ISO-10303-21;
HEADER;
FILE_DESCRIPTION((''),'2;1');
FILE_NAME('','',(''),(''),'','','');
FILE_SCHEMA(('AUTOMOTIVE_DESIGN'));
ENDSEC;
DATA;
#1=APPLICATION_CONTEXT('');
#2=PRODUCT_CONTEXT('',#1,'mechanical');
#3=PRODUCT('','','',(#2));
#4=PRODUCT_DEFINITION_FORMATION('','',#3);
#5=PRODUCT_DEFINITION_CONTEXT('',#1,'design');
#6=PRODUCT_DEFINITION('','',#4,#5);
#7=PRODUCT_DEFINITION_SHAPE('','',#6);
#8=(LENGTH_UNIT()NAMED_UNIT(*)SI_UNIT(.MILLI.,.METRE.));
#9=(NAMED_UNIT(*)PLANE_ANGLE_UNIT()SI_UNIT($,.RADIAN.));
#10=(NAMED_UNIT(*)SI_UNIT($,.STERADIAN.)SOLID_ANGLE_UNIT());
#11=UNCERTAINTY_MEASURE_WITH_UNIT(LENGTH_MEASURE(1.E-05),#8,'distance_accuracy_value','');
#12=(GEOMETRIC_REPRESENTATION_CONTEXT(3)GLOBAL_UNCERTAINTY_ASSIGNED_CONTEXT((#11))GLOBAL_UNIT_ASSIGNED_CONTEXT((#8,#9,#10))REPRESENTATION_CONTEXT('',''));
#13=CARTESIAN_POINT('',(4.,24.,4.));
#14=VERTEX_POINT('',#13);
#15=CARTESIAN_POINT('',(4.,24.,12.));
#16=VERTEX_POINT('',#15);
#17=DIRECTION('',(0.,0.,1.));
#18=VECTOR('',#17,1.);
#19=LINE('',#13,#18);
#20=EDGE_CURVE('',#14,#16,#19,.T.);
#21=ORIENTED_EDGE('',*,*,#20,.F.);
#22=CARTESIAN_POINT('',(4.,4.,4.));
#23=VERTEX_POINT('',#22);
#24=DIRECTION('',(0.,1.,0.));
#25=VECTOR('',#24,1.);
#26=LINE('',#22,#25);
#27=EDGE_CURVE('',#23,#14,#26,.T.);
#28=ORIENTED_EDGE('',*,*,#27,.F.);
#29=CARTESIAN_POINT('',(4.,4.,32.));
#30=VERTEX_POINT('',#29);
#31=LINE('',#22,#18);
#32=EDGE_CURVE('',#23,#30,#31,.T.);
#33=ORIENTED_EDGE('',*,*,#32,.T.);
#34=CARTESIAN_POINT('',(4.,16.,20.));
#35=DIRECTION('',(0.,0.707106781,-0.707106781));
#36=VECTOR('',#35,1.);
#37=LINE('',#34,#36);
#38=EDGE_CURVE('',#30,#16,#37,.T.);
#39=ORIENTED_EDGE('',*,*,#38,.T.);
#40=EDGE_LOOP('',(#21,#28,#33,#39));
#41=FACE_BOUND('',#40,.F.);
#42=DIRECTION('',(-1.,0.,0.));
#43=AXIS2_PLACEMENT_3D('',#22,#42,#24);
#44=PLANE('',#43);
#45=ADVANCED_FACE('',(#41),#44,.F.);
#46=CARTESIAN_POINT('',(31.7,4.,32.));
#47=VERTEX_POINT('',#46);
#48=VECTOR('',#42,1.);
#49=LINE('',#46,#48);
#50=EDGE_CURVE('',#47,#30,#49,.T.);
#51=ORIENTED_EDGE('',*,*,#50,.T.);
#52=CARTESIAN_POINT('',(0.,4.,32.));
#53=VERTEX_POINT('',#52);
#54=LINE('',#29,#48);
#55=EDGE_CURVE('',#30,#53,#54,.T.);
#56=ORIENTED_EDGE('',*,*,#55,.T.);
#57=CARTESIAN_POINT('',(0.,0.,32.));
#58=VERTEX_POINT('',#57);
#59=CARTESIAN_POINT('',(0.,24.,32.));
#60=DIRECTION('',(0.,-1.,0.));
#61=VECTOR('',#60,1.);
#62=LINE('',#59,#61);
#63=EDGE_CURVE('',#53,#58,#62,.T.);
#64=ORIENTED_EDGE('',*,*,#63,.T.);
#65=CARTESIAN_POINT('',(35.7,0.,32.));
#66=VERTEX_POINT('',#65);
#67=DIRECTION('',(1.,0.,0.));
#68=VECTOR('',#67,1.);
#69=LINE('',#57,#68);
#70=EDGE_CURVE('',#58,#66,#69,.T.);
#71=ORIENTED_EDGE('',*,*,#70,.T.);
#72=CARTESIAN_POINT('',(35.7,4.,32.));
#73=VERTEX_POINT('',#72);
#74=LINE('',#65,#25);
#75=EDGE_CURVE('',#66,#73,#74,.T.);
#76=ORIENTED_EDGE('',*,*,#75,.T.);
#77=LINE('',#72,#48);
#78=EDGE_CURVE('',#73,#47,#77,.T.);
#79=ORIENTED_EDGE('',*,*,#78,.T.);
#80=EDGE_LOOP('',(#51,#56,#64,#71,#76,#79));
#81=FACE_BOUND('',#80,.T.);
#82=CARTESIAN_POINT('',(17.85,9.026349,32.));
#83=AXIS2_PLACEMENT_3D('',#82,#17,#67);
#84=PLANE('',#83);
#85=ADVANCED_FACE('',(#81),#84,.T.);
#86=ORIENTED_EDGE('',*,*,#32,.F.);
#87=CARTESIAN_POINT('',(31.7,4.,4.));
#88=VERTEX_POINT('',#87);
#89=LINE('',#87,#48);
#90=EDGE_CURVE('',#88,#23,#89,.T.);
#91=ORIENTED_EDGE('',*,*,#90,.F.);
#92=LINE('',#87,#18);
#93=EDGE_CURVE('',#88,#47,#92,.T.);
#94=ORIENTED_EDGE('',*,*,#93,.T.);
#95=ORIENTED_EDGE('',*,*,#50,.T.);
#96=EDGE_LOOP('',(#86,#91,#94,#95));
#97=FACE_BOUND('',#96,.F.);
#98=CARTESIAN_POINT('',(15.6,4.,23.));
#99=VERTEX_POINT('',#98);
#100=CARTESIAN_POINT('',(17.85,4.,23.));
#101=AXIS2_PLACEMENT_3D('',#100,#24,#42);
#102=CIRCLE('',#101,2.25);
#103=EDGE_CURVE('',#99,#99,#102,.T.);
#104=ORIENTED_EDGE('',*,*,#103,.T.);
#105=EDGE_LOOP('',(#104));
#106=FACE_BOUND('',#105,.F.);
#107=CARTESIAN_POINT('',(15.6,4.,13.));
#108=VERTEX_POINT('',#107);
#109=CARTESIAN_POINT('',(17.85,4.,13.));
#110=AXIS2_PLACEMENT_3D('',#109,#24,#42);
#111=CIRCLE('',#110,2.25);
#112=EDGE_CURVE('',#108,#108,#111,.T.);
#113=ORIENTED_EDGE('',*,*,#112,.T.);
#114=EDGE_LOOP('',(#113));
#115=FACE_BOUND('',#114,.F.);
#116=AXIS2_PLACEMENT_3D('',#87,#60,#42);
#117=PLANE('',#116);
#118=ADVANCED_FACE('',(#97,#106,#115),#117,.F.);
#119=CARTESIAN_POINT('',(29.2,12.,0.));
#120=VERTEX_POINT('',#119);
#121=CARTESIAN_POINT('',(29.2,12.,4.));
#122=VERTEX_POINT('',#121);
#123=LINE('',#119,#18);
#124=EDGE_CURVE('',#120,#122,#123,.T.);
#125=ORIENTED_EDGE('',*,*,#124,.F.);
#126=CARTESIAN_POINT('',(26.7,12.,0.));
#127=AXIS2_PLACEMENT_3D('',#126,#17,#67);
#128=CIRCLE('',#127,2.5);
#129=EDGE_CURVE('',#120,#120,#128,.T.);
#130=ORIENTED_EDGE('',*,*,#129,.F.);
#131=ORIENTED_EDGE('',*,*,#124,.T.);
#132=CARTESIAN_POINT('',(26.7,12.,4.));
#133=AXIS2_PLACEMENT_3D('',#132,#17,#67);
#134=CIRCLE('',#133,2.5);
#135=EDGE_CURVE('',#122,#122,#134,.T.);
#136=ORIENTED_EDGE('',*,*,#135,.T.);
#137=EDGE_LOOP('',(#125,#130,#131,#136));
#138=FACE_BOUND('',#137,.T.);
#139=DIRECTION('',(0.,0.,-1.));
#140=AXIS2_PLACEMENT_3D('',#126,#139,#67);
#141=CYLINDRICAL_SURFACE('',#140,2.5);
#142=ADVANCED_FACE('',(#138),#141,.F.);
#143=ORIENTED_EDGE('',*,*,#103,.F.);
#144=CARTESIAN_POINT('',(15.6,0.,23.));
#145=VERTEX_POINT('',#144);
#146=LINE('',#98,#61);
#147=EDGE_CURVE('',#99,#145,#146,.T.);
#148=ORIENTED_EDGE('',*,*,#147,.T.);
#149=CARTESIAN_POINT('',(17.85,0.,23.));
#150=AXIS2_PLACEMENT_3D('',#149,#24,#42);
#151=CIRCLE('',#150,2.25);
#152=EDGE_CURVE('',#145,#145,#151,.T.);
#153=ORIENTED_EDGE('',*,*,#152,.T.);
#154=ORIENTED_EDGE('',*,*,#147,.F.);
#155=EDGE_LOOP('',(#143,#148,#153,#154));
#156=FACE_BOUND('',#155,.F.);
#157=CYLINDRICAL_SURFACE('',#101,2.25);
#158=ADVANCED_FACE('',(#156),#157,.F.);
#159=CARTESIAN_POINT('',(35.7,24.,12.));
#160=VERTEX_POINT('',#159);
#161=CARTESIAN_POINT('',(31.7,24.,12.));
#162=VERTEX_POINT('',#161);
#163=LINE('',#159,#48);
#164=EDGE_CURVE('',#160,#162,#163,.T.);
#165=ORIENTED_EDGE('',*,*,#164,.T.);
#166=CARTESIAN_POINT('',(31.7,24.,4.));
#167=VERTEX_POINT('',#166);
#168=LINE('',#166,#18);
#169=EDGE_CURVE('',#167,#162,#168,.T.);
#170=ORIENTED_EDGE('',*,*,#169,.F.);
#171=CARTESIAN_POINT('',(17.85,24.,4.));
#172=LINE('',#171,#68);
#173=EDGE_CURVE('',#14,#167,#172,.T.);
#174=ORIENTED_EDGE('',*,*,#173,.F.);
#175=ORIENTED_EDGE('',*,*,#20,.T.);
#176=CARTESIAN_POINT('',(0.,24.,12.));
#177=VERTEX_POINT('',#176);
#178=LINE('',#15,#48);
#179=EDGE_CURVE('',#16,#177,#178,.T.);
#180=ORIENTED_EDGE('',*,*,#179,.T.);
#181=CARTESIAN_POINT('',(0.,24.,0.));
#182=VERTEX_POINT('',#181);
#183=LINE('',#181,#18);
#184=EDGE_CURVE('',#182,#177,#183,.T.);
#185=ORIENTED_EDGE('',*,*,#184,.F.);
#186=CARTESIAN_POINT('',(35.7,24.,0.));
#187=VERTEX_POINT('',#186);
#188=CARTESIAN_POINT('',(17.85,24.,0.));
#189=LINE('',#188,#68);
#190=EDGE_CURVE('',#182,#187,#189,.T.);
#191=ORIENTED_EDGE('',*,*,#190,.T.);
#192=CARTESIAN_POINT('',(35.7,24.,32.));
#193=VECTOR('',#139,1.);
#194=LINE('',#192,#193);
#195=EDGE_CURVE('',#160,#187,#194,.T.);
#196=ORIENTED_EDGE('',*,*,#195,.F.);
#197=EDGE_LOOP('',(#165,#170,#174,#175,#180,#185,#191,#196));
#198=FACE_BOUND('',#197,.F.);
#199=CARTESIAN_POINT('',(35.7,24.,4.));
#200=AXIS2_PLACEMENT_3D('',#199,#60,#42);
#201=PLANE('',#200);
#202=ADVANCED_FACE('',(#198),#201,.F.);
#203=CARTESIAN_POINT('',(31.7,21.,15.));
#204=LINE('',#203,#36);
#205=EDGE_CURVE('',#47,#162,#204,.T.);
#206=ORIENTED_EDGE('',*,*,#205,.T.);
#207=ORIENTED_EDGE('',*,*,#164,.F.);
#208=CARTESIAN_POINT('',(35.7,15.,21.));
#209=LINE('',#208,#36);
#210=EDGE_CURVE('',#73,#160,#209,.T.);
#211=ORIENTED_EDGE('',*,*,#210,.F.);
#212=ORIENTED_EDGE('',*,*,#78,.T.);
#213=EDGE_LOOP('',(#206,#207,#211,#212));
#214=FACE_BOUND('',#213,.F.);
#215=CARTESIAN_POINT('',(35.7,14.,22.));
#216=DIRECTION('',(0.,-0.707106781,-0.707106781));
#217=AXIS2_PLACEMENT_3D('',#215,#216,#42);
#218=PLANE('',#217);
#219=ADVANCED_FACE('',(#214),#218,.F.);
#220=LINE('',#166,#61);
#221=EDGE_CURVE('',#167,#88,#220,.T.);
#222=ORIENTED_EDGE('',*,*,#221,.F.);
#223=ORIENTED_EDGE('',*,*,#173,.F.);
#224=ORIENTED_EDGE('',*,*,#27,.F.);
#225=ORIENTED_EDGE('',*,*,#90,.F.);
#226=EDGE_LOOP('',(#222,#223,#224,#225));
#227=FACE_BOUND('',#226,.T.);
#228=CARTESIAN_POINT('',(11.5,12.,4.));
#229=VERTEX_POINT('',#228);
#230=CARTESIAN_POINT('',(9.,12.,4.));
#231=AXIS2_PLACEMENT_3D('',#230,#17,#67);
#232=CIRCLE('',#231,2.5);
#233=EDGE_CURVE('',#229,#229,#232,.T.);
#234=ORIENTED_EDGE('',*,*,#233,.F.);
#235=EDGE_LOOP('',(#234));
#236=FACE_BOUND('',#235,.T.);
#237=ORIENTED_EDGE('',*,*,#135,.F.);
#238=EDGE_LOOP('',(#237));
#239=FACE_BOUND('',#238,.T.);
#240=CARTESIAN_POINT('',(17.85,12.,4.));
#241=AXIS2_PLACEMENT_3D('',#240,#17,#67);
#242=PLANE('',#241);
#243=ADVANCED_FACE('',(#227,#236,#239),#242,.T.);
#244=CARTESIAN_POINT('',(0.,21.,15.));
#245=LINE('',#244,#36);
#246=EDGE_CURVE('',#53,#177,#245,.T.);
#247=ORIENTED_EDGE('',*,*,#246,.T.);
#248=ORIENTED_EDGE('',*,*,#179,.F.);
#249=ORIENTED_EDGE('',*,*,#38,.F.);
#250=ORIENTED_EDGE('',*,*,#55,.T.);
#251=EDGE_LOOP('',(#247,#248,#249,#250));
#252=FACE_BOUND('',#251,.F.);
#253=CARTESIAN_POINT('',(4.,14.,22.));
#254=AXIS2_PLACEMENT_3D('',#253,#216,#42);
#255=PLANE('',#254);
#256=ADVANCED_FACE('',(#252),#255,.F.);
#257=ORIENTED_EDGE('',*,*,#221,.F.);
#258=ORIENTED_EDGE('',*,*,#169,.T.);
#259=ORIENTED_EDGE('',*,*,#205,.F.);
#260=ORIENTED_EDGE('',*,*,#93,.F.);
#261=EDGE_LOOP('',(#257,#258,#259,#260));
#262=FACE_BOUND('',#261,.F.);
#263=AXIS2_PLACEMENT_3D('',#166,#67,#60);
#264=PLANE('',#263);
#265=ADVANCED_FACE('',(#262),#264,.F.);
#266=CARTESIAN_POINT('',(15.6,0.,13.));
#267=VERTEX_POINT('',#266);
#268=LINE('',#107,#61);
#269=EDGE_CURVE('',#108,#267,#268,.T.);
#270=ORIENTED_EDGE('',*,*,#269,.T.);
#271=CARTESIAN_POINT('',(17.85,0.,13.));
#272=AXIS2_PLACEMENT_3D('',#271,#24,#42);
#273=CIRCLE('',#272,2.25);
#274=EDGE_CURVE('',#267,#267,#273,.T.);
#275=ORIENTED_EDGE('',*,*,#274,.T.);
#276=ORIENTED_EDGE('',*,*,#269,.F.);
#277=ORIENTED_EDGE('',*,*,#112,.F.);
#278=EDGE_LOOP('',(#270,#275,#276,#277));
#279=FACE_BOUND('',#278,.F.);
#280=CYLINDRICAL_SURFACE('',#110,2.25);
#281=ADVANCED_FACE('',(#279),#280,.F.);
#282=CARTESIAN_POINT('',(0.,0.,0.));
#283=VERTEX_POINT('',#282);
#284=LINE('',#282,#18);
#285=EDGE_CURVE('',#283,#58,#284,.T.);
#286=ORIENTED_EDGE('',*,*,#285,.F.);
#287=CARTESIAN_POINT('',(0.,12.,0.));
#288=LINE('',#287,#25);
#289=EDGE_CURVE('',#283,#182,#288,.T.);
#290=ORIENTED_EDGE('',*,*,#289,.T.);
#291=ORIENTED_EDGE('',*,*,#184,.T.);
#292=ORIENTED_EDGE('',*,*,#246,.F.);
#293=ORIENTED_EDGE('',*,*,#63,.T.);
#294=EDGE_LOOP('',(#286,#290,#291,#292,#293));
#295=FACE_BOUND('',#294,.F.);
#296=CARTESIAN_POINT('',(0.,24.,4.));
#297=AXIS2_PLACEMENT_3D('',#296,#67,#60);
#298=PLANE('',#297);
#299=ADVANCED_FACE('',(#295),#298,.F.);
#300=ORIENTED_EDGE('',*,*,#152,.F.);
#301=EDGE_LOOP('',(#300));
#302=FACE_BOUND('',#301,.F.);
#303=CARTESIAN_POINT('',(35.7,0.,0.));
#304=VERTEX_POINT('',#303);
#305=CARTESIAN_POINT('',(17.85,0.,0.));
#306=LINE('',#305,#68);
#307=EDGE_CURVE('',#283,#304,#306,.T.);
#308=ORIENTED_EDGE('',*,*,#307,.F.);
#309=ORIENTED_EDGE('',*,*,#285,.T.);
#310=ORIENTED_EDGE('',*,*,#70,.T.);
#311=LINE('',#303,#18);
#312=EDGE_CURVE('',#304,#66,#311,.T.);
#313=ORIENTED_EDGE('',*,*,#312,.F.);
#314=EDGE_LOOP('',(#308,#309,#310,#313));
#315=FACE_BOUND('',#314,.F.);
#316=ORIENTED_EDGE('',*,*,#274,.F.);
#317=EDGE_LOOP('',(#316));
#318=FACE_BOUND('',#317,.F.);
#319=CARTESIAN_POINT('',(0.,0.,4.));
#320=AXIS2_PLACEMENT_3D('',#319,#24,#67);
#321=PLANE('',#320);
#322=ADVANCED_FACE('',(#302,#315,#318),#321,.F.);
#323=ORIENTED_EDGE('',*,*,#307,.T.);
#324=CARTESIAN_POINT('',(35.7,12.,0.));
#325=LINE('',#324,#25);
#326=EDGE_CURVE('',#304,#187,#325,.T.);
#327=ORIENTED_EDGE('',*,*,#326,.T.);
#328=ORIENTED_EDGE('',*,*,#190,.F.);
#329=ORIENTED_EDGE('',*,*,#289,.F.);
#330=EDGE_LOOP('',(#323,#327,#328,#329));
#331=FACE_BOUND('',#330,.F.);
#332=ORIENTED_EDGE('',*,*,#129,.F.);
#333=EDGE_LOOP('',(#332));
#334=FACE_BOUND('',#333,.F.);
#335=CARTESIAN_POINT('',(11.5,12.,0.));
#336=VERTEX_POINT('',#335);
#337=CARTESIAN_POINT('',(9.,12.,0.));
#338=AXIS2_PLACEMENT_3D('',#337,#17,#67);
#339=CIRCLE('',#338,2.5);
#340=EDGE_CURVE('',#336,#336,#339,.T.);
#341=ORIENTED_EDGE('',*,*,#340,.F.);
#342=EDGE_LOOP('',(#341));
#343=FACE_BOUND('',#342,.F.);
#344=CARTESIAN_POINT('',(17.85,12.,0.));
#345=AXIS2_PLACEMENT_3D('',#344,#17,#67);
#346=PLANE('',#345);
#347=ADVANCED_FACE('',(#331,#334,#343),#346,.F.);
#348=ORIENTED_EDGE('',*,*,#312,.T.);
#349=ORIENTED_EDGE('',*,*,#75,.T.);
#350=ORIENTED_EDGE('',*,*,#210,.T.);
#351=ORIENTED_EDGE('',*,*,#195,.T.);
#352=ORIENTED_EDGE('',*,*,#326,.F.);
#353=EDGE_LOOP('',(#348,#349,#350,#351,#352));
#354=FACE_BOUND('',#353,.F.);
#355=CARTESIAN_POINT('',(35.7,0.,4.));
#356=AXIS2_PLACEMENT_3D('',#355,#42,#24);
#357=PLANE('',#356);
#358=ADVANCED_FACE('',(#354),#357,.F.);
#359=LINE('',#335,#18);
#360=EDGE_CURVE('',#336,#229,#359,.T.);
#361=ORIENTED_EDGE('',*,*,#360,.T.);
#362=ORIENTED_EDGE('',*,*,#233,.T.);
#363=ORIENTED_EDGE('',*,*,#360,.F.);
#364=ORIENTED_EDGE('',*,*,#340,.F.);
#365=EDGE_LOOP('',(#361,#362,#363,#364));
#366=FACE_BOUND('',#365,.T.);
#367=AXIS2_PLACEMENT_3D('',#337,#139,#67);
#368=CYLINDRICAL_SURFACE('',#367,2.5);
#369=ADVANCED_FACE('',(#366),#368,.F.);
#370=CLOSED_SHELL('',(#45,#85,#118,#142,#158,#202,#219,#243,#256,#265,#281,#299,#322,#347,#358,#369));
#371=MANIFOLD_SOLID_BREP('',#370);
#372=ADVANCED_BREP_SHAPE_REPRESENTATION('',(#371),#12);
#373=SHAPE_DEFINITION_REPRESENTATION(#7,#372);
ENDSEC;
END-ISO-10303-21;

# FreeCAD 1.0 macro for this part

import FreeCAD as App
import Part
import Sketcher
Q = App.Units.Quantity


def edges_at(feature, points):
    """Names of the edges that pass closest to the given points."""
    edges = feature.Shape.Edges
    near = lambda p: min(range(len(edges)), key=lambda i: edges[i].distToShape(Part.Vertex(*p))[0])
    return sorted({f"Edge{near(p) + 1}" for p in points})

doc = App.newDocument("Part")
body = doc.addObject("PartDesign::Body", "Body")

# Sketch on XY plane
sketch1 = body.newObject("Sketcher::SketchObject", "Sketch")
sketch1.AttachmentSupport = (doc.getObject("XY_Plane"), [""])
sketch1.MapMode = "FlatFace"
sketch1.addGeometry(Part.LineSegment(App.Vector(0, 24, 0), App.Vector(0, 0, 0)), False)
sketch1.addGeometry(Part.LineSegment(App.Vector(0, 0, 0), App.Vector(35.7, 0, 0)), False)
sketch1.addGeometry(Part.LineSegment(App.Vector(35.7, 0, 0), App.Vector(35.7, 24, 0)), False)
sketch1.addGeometry(Part.LineSegment(App.Vector(35.7, 24, 0), App.Vector(0, 24, 0)), False)
sketch1.addGeometry(Part.Circle(App.Vector(9, 12, 0), App.Vector(0, 0, 1), 2.5), False)
sketch1.addGeometry(Part.Circle(App.Vector(26.7, 12, 0), App.Vector(0, 0, 1), 2.5), False)
sketch1.addConstraint(Sketcher.Constraint("Coincident", 0, 2, 1, 1))
sketch1.addConstraint(Sketcher.Constraint("Coincident", 1, 2, 2, 1))
sketch1.addConstraint(Sketcher.Constraint("Coincident", 2, 2, 3, 1))
sketch1.addConstraint(Sketcher.Constraint("Coincident", 3, 2, 0, 1))
sketch1.addConstraint(Sketcher.Constraint("Vertical", 0))
sketch1.addConstraint(Sketcher.Constraint("Horizontal", 1))
sketch1.addConstraint(Sketcher.Constraint("Vertical", 2))
sketch1.addConstraint(Sketcher.Constraint("Horizontal", 3))
sketch1.addConstraint(Sketcher.Constraint("Coincident", 0, 2, -1, 1))
sketch1.addConstraint(Sketcher.Constraint("Equal", 4, 5))
sketch1.addConstraint(Sketcher.Constraint("Horizontal", 4, 3, 5, 3))
sketch1.addConstraint(Sketcher.Constraint("Diameter", 4, Q("5 mm")))
sketch1.addConstraint(Sketcher.Constraint("DistanceY", 0, 2, 0, 1, Q("24 mm")))
sketch1.addConstraint(Sketcher.Constraint("DistanceX", 1, 1, 1, 2, Q("35.7 mm")))
sketch1.addConstraint(Sketcher.Constraint("DistanceX", -1, 1, 4, 3, Q("9 mm")))
sketch1.addConstraint(Sketcher.Constraint("DistanceY", -1, 1, 4, 3, Q("12 mm")))
sketch1.addConstraint(Sketcher.Constraint("DistanceX", 5, 3, 1, 2, Q("9 mm")))
pad1 = body.newObject("PartDesign::Pad", "Pad")
pad1.Profile = sketch1
pad1.Length = 4

# Sketch on XY plane
sketch2 = body.newObject("Sketcher::SketchObject", "Sketch001")
sketch2.AttachmentSupport = (doc.getObject("XY_Plane"), [""])
sketch2.MapMode = "FlatFace"
sketch2.AttachmentOffset = App.Placement(App.Vector(0, 0, 4), App.Rotation())
sketch2.addGeometry(Part.LineSegment(App.Vector(31.7, 4, 0), App.Vector(4, 4, 0)), False)
sketch2.addGeometry(Part.LineSegment(App.Vector(4, 4, 0), App.Vector(4, 24, 0)), False)
sketch2.addGeometry(Part.LineSegment(App.Vector(4, 24, 0), App.Vector(0, 24, 0)), False)
sketch2.addGeometry(Part.LineSegment(App.Vector(0, 24, 0), App.Vector(0, 0, 0)), False)
sketch2.addGeometry(Part.LineSegment(App.Vector(0, 0, 0), App.Vector(35.7, 0, 0)), False)
sketch2.addGeometry(Part.LineSegment(App.Vector(35.7, 0, 0), App.Vector(35.7, 24, 0)), False)
sketch2.addGeometry(Part.LineSegment(App.Vector(35.7, 24, 0), App.Vector(31.7, 24, 0)), False)
sketch2.addGeometry(Part.LineSegment(App.Vector(31.7, 24, 0), App.Vector(31.7, 4, 0)), False)
sketch2.addConstraint(Sketcher.Constraint("Coincident", 0, 2, 1, 1))
sketch2.addConstraint(Sketcher.Constraint("Coincident", 1, 2, 2, 1))
sketch2.addConstraint(Sketcher.Constraint("Coincident", 2, 2, 3, 1))
sketch2.addConstraint(Sketcher.Constraint("Coincident", 3, 2, 4, 1))
sketch2.addConstraint(Sketcher.Constraint("Coincident", 4, 2, 5, 1))
sketch2.addConstraint(Sketcher.Constraint("Coincident", 5, 2, 6, 1))
sketch2.addConstraint(Sketcher.Constraint("Coincident", 6, 2, 7, 1))
sketch2.addConstraint(Sketcher.Constraint("Coincident", 7, 2, 0, 1))
sketch2.addConstraint(Sketcher.Constraint("Horizontal", 0))
sketch2.addConstraint(Sketcher.Constraint("Vertical", 1))
sketch2.addConstraint(Sketcher.Constraint("Horizontal", 2))
sketch2.addConstraint(Sketcher.Constraint("Vertical", 3))
sketch2.addConstraint(Sketcher.Constraint("Horizontal", 4))
sketch2.addConstraint(Sketcher.Constraint("Vertical", 5))
sketch2.addConstraint(Sketcher.Constraint("Horizontal", 6))
sketch2.addConstraint(Sketcher.Constraint("Vertical", 7))
sketch2.addConstraint(Sketcher.Constraint("Coincident", 3, 2, -1, 1))
sketch2.addConstraint(Sketcher.Constraint("Horizontal", 2, 2, 5, 2))
sketch2.addConstraint(Sketcher.Constraint("Equal", 2, 6))
sketch2.addConstraint(Sketcher.Constraint("DistanceX", 2, 2, 2, 1, Q("4 mm")))
sketch2.addConstraint(Sketcher.Constraint("DistanceY", 1, 1, 1, 2, Q("20 mm")))
sketch2.addConstraint(Sketcher.Constraint("DistanceY", 3, 2, 3, 1, Q("24 mm")))
sketch2.addConstraint(Sketcher.Constraint("DistanceX", 0, 2, 0, 1, Q("27.7 mm")))
pad2 = body.newObject("PartDesign::Pad", "Pad001")
pad2.Profile = sketch2
pad2.Length = 28
doc.recompute()

chamfer = body.newObject("PartDesign::Chamfer", "Chamfer")
chamfer.Base = (pad2, edges_at(pad2, [(33.7, 24, 32), (2, 24, 32)]))
chamfer.Size = 20

# Sketch on XZ plane
sketch3 = body.newObject("Sketcher::SketchObject", "Sketch002")
sketch3.AttachmentSupport = (doc.getObject("XZ_Plane"), [""])
sketch3.MapMode = "FlatFace"
sketch3.AttachmentOffset = App.Placement(App.Vector(0, 0, -4), App.Rotation())
sketch3.addGeometry(Part.Circle(App.Vector(17.9, 23, 0), App.Vector(0, 0, 1), 2.2), False)
sketch3.addGeometry(Part.Circle(App.Vector(17.9, 13, 0), App.Vector(0, 0, 1), 2.2), False)
sketch3.addConstraint(Sketcher.Constraint("Equal", 0, 1))
sketch3.addConstraint(Sketcher.Constraint("Vertical", 0, 3, 1, 3))
sketch3.addConstraint(Sketcher.Constraint("Diameter", 0, Q("4.5 mm")))
sketch3.addConstraint(Sketcher.Constraint("DistanceY", -1, 1, 0, 3, Q("23 mm")))
sketch3.addConstraint(Sketcher.Constraint("DistanceY", -1, 1, 1, 3, Q("13 mm")))
sketch3.addConstraint(Sketcher.Constraint("DistanceX", -1, 1, 0, 3, Q("17.85 mm")))
pocket1 = body.newObject("PartDesign::Pocket", "Pocket")
pocket1.Profile = sketch3
pocket1.Length = 4
pocket1.Reversed = True

doc.recompute()
